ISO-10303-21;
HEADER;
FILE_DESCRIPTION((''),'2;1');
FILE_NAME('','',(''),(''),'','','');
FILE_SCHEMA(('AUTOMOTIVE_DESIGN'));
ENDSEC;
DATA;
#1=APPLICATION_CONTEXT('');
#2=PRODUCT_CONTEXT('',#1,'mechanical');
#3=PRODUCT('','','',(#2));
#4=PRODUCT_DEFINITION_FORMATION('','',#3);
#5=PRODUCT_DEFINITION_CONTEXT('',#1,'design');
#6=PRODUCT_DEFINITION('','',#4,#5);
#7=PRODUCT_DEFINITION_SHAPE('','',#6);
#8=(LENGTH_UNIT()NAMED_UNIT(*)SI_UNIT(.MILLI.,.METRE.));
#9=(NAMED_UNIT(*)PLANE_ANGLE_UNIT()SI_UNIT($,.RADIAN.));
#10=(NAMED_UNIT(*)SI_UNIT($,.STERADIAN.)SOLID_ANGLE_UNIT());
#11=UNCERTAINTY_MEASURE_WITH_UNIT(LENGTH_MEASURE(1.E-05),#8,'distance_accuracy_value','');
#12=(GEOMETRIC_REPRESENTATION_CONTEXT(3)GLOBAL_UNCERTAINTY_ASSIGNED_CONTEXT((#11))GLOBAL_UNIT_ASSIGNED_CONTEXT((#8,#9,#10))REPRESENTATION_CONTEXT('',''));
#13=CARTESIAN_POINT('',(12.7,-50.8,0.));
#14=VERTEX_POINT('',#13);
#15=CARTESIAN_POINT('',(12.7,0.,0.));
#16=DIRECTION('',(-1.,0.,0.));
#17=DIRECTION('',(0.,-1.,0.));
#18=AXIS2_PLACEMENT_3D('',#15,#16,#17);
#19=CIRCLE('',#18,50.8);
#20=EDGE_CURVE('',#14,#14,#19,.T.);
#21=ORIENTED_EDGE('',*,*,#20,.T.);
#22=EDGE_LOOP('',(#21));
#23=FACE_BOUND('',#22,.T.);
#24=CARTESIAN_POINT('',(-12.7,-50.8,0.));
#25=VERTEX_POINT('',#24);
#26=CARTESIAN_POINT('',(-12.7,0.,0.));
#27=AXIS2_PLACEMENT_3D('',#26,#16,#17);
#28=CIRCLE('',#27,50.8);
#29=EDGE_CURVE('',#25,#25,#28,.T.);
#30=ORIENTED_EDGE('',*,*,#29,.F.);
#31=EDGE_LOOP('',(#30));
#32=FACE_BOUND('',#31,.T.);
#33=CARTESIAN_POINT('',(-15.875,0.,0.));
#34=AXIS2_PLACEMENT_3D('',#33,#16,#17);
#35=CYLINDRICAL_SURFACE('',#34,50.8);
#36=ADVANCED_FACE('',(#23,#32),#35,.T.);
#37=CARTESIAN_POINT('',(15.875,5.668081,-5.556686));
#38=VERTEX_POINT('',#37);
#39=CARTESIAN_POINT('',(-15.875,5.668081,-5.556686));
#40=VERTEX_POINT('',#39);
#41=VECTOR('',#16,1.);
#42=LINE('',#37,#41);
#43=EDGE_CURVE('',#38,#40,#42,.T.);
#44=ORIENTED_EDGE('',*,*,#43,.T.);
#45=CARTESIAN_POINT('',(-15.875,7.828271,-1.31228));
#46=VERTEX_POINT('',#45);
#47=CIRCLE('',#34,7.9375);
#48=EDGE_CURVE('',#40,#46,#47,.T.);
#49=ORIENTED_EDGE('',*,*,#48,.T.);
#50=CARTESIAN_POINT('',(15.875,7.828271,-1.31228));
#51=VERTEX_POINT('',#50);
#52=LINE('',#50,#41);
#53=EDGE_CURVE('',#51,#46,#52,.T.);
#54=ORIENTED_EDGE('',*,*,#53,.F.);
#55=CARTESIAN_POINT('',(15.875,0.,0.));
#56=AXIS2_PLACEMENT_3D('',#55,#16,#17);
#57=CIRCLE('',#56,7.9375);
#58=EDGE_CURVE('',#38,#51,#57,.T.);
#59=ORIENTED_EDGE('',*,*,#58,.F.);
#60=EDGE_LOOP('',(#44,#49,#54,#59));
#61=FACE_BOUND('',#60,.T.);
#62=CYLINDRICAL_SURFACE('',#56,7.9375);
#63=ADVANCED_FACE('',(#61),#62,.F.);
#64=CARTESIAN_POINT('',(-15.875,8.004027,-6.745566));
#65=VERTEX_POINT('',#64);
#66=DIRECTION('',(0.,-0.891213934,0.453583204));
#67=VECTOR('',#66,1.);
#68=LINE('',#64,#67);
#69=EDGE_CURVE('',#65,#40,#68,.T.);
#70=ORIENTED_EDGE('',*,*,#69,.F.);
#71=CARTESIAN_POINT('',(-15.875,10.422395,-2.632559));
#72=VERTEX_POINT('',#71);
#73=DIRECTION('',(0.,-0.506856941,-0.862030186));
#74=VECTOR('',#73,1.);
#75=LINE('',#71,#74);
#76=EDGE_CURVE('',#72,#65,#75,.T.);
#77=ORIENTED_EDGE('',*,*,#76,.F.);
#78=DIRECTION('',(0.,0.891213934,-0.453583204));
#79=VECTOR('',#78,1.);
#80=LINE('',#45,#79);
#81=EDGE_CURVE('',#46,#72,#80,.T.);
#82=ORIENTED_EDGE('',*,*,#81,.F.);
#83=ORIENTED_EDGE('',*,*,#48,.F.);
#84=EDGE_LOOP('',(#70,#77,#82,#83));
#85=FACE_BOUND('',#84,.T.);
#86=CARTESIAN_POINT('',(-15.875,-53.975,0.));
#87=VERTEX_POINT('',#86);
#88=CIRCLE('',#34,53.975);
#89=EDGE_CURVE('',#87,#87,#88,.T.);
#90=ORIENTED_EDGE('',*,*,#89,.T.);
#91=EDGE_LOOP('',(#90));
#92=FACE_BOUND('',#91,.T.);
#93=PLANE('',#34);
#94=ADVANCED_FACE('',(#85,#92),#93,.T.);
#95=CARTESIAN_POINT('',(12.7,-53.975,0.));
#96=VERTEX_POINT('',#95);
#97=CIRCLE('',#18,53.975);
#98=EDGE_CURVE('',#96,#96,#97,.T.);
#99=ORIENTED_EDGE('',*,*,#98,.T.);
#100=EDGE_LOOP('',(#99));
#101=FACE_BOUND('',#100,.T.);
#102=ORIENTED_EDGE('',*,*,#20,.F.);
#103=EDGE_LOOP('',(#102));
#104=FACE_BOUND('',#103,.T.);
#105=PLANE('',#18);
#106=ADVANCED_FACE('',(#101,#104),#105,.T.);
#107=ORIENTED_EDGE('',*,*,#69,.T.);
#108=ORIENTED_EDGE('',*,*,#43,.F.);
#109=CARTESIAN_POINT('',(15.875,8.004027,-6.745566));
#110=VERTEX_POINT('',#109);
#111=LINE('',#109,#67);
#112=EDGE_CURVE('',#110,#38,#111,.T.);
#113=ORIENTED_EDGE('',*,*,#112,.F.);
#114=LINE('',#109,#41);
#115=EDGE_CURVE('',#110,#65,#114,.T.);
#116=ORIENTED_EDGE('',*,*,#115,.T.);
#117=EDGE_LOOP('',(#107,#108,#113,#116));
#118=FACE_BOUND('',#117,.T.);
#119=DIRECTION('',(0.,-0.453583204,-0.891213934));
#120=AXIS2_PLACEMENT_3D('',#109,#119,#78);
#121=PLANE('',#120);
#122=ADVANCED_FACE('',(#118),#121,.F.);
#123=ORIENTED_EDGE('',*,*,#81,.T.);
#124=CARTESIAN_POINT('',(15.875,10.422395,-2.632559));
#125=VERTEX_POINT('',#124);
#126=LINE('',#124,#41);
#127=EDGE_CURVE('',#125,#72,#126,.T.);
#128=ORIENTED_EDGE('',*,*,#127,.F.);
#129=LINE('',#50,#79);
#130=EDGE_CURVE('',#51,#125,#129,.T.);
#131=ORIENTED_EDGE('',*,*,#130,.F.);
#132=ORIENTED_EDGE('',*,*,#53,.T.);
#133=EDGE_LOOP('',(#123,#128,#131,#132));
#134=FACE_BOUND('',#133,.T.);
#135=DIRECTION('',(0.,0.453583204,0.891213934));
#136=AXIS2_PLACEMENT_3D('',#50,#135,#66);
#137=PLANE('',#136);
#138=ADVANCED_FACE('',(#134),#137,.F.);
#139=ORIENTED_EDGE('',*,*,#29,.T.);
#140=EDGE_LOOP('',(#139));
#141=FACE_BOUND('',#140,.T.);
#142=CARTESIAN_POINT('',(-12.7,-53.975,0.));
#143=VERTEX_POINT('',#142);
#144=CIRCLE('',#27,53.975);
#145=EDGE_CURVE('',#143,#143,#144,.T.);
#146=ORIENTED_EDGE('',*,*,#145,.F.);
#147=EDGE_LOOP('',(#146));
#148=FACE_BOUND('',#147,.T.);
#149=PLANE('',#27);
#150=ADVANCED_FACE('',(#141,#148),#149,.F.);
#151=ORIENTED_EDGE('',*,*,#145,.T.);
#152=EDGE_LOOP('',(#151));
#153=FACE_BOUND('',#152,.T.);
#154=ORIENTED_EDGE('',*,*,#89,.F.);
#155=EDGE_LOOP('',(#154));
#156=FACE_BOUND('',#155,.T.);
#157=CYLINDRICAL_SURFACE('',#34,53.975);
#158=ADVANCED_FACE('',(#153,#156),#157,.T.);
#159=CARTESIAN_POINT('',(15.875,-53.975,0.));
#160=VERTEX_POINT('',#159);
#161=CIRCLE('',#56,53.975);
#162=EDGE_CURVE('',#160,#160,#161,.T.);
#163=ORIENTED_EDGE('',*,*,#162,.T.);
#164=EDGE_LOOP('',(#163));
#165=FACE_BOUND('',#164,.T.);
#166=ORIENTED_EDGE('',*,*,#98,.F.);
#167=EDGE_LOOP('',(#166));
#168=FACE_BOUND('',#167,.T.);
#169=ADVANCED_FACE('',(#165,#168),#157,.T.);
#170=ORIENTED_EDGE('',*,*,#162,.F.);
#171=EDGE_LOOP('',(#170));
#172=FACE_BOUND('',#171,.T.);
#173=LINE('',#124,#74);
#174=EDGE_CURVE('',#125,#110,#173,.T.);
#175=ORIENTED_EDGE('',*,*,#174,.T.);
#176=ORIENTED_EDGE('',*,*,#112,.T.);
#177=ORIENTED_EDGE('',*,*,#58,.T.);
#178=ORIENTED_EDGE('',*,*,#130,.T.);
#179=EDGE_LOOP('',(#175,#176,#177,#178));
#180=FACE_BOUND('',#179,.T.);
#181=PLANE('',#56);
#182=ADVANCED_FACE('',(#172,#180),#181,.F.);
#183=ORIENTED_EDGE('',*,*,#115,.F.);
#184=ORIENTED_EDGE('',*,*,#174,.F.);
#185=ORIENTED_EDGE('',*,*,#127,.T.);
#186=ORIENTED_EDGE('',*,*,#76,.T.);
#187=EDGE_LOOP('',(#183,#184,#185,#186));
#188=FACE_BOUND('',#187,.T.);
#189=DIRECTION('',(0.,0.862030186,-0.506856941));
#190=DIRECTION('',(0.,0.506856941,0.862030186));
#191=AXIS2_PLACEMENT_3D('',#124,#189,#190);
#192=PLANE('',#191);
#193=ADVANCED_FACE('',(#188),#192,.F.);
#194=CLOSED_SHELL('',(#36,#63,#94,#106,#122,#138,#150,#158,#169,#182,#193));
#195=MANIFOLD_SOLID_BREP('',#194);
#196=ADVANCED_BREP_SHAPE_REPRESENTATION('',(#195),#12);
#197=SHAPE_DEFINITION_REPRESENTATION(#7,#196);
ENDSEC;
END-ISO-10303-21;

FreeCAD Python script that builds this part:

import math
import FreeCAD as App
import Part
import Sketcher
Q = App.Units.Quantity


def add_polygon(sketch, points):
    """Adds a closed chain of lines whose ends are joined by coincident constraints."""
    first, n = sketch.GeometryCount, len(points)
    for a, b in zip(points, points[1:] + points[:1]):
        sketch.addGeometry(Part.LineSegment(App.Vector(*a, 0), App.Vector(*b, 0)), False)
    for i in range(n):
        sketch.addConstraint(Sketcher.Constraint("Coincident", first + i, 2, first + (i + 1) % n, 1))

doc = App.newDocument("Part")
body = doc.addObject("PartDesign::Body", "Body")

# Sketch on XY plane
sketch1 = doc.addObject("Sketcher::SketchObject", "Sketch")
body.addObject(sketch1)
sketch1.AttachmentSupport = (doc.XY_Plane, [""])
sketch1.MapMode = "FlatFace"
add_polygon(sketch1, [(-15.9, 0), (15.9, 0), (15.9, 54), (12.7, 54), (12.7, 50.8), (-12.7, 50.8), (-12.7, 54), (-15.9, 54)])  # lines 0-7
sketch1.addConstraint([
    Sketcher.Constraint("Horizontal", 0),
    Sketcher.Constraint("Vertical", 1),
    Sketcher.Constraint("Horizontal", 2),
    Sketcher.Constraint("Vertical", 3),
    Sketcher.Constraint("Horizontal", 4),
    Sketcher.Constraint("Vertical", 5),
    Sketcher.Constraint("Horizontal", 6),
    Sketcher.Constraint("Vertical", 7),
    Sketcher.Constraint("Symmetric", 0, 2, 7, 2, -1, 1),
    Sketcher.Constraint("Symmetric", 2, 2, 5, 2, -2),
    Sketcher.Constraint("Equal", 6, 3),
    Sketcher.Constraint("DistanceX", 4, 2, 4, 1, Q("1 in")),
    Sketcher.Constraint("DistanceY", -1, 1, 3, 2, Q("2 in")),
    Sketcher.Constraint("DistanceX", 0, 1, 0, 2, Q("1.25 in")),
])
revolution = doc.addObject("PartDesign::Revolution", "Revolution")
body.addObject(revolution)
revolution.Profile = sketch1
revolution.ReferenceAxis = (sketch1, ["H_Axis"])
revolution.Angle = 360

# Sketch on YZ plane
sketch2 = doc.addObject("Sketcher::SketchObject", "Sketch001")
body.addObject(sketch2)
sketch2.AttachmentSupport = (doc.YZ_Plane, [""])
sketch2.MapMode = "FlatFace"
sketch2.AttachmentOffset = App.Placement(App.Vector(0, 0, -0.625 * 25.4), App.Rotation())
sketch2.addGeometry([
    Part.LineSegment(App.Vector(8, -6.7, 0), App.Vector(5.7, -5.6, 0)),
    Part.ArcOfCircle(Part.Circle(App.Vector(0, 0, 0), App.Vector(0, 0, 1), 7.9), math.radians(-10), math.radians(316)),
    Part.LineSegment(App.Vector(7.8, -1.3, 0), App.Vector(10.4, -2.6, 0)),
    Part.LineSegment(App.Vector(10.4, -2.6, 0), App.Vector(8, -6.7, 0)),
], False)
sketch2.addConstraint([
    Sketcher.Constraint("Coincident", 0, 2, 1, 2),
    Sketcher.Constraint("Coincident", 1, 1, 2, 1),
    Sketcher.Constraint("Coincident", 2, 2, 3, 1),
    Sketcher.Constraint("Coincident", 3, 2, 0, 1),
    Sketcher.Constraint("Coincident", 1, 3, -1, 1),
    Sketcher.Constraint("Parallel", 0, 2),
    Sketcher.Constraint("Radius", 1, Q("0.3125 in")),
    Sketcher.Constraint("DistanceX", -1, 1, 0, 2, 5.668081),
    Sketcher.Constraint("DistanceX", -1, 1, 1, 1, 7.828271),
    Sketcher.Constraint("DistanceY", 2, 2, -1, 1, 2.632559),
    Sketcher.Constraint("DistanceY", 3, 2, 0, 2, 1.188879),
    Sketcher.Constraint("Distance", 0, 2.621084),
])
pocket1 = doc.addObject("PartDesign::Pocket", "Pocket")
body.addObject(pocket1)
pocket1.Profile = sketch2
pocket1.Type = "ThroughAll"
pocket1.Reversed = True

doc.recompute()
